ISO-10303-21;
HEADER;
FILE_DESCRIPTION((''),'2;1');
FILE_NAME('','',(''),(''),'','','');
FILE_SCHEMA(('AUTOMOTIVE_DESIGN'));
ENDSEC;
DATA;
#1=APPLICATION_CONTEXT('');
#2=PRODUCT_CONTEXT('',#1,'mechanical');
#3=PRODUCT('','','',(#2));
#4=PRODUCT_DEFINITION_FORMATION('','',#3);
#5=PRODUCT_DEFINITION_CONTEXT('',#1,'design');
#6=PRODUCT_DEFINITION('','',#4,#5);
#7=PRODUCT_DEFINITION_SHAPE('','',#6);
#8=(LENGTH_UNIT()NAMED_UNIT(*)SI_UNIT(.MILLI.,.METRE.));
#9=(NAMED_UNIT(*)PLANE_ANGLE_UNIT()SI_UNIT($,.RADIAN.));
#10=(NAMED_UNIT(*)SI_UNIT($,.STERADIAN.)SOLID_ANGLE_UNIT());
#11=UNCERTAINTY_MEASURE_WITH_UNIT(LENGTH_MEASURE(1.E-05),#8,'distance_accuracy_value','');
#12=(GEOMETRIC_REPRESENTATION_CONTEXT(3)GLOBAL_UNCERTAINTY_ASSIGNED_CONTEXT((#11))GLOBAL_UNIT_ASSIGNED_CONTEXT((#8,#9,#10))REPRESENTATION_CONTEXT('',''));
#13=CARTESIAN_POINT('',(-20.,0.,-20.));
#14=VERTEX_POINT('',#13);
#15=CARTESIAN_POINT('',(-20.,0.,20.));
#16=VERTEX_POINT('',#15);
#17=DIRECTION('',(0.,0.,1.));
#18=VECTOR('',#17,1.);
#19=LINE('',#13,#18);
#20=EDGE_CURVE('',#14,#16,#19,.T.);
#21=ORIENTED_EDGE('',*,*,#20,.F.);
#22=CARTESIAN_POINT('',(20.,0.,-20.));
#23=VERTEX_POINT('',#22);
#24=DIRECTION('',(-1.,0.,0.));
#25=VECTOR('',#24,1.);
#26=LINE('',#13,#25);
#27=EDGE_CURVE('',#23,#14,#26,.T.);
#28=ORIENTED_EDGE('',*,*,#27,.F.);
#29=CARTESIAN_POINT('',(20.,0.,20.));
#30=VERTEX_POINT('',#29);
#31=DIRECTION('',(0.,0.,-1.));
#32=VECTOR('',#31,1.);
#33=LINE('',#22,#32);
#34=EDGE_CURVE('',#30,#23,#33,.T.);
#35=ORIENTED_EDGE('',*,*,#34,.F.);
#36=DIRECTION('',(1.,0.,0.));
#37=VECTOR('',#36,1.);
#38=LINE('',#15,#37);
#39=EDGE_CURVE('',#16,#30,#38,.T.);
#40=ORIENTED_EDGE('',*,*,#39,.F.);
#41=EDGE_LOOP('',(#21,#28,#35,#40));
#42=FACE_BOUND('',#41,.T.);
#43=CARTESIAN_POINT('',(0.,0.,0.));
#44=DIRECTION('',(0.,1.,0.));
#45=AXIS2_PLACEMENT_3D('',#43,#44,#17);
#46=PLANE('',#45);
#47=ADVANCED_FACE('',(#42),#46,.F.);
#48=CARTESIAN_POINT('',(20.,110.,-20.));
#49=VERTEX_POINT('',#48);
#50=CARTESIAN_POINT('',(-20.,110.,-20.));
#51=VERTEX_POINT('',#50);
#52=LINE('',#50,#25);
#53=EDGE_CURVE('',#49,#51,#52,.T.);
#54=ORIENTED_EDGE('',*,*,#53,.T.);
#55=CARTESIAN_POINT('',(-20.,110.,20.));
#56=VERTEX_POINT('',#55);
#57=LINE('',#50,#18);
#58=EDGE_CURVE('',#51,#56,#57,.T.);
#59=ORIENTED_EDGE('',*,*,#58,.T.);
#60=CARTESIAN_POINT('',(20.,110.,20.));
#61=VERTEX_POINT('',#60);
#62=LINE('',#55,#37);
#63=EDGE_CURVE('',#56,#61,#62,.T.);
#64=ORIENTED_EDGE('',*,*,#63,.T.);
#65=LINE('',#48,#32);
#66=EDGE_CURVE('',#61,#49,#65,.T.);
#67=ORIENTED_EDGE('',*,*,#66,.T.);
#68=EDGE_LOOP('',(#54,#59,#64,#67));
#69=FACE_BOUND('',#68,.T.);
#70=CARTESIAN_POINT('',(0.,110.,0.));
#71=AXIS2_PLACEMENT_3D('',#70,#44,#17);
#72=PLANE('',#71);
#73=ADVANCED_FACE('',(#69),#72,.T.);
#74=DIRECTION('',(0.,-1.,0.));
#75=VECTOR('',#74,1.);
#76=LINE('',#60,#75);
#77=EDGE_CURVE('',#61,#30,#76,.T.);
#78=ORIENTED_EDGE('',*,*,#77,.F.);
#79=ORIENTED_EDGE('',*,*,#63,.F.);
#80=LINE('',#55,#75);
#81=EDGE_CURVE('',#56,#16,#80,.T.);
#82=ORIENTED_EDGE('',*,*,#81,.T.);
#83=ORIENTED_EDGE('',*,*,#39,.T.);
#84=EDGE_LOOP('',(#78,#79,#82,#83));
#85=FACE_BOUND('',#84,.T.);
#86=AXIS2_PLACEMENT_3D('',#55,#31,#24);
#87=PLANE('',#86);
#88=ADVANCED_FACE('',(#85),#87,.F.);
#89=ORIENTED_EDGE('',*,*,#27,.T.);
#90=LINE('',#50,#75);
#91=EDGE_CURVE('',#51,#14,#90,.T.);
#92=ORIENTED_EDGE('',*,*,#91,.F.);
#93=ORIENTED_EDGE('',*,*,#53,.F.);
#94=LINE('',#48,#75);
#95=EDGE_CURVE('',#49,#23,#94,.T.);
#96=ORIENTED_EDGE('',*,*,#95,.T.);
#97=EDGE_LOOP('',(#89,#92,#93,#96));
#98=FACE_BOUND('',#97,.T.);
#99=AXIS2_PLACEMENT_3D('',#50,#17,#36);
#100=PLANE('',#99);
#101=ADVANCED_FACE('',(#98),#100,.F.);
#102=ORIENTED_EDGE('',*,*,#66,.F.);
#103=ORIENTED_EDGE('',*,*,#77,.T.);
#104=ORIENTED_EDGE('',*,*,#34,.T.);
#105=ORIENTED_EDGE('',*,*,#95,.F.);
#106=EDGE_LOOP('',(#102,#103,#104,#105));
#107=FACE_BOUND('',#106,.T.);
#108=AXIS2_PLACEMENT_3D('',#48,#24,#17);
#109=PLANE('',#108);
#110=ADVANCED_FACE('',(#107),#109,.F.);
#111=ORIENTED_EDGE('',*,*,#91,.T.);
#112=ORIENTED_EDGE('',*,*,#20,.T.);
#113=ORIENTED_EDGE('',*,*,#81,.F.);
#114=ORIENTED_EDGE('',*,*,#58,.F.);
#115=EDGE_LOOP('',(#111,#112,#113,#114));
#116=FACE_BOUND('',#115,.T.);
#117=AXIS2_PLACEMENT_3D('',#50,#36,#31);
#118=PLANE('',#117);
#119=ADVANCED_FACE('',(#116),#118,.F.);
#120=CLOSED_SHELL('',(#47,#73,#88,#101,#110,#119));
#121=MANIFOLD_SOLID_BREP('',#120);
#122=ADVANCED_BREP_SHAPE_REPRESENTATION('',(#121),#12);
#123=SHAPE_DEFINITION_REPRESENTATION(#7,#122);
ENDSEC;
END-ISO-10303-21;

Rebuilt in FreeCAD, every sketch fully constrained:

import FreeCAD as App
import Part
import Sketcher


def add_polygon(sketch, points):
    """Adds a closed chain of lines whose ends are joined by coincident constraints."""
    first, n = sketch.GeometryCount, len(points)
    for a, b in zip(points, points[1:] + points[:1]):
        sketch.addGeometry(Part.LineSegment(App.Vector(*a, 0), App.Vector(*b, 0)), False)
    for i in range(n):
        sketch.addConstraint(Sketcher.Constraint("Coincident", first + i, 2, first + (i + 1) % n, 1))

doc = App.newDocument("Part")
body = doc.addObject("PartDesign::Body", "Body")

# Sketch on XZ plane
sketch1 = doc.addObject("Sketcher::SketchObject", "Sketch")
body.addObject(sketch1)
sketch1.AttachmentSupport = (doc.XZ_Plane, [""])
sketch1.MapMode = "FlatFace"
add_polygon(sketch1, [(-20, -20), (-20, 20), (20, 20), (20, -20)])  # lines 0-3
sketch1.addConstraint(Sketcher.Constraint("Vertical", 0))
sketch1.addConstraint(Sketcher.Constraint("Horizontal", 1))
sketch1.addConstraint(Sketcher.Constraint("Vertical", 2))
sketch1.addConstraint(Sketcher.Constraint("Horizontal", 3))
sketch1.addConstraint(Sketcher.Constraint("Symmetric", 0, 2, 2, 2, -1, 1))
sketch1.addConstraint(Sketcher.Constraint("Equal", 3, 0))
sketch1.addConstraint(Sketcher.Constraint("DistanceX", 1, 1, 1, 2, 40.0))
pad1 = doc.addObject("PartDesign::Pad", "Pad")
body.addObject(pad1)
pad1.Profile = sketch1
pad1.Length = 110
pad1.Reversed = True

doc.recompute()
